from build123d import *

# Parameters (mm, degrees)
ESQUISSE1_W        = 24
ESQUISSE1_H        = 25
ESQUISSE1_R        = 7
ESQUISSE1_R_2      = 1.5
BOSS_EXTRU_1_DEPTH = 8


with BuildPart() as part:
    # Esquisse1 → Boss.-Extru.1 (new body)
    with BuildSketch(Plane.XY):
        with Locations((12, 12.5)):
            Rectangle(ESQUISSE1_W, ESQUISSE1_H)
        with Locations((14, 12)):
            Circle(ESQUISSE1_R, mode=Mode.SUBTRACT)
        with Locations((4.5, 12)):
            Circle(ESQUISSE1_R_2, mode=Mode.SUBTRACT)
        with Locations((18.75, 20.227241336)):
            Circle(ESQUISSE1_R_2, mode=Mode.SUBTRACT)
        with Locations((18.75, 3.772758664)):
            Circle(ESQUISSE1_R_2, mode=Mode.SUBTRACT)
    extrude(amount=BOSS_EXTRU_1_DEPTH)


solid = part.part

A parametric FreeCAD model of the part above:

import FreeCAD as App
import Part
import Sketcher

V = App.Vector
Q = App.Units.Quantity


def add_polygon(sketch, points):
    """Adds a closed chain of lines whose ends are joined by coincident constraints."""
    first, n = sketch.GeometryCount, len(points)
    for a, b in zip(points, points[1:] + points[:1]):
        sketch.addGeometry(Part.LineSegment(App.Vector(*a, 0), App.Vector(*b, 0)), False)
    for i in range(n):
        sketch.addConstraint(Sketcher.Constraint("Coincident", first + i, 2, first + (i + 1) % n, 1))

doc = App.newDocument("Part")
body = doc.addObject("PartDesign::Body", "Body")

sketch1 = body.newObject("Sketcher::SketchObject", "Sketch")
sketch1.AttachmentSupport = (doc.getObject("XY_Plane"), [""])
sketch1.MapMode = "FlatFace"
add_polygon(sketch1, [(0, 25), (0, 0), (24, 0), (24, 25)])
sketch1.addGeometry(Part.Circle(V(18.8, 3.8, 0), V(0, 0, 1), 1.5), False)
sketch1.addGeometry(Part.Circle(V(4.5, 12, 0), V(0, 0, 1), 1.5), False)
sketch1.addGeometry(Part.Circle(V(14, 12, 0), V(0, 0, 1), 7), False)
sketch1.addGeometry(Part.Circle(V(18.8, 20.2, 0), V(0, 0, 1), 1.5), False)
sketch1.addConstraint([
    Sketcher.Constraint("Vertical", 0),
    Sketcher.Constraint("Horizontal", 1),
    Sketcher.Constraint("Vertical", 2),
    Sketcher.Constraint("Horizontal", 3),
    Sketcher.Constraint("Coincident", 0, 2, -1, 1),
    Sketcher.Constraint("Equal", 4, 5),
    Sketcher.Constraint("Equal", 5, 7),
    Sketcher.Constraint("Horizontal", 5, 3, 6, 3),
    Sketcher.Constraint("Vertical", 4, 3, 7, 3),
    Sketcher.Constraint("Diameter", 4, Q("3 mm")),
    Sketcher.Constraint("Diameter", 6, Q("14 mm")),
    Sketcher.Constraint("DistanceX", 1, 1, 1, 2, Q("24 mm")),
    Sketcher.Constraint("DistanceY", 0, 2, 0, 1, Q("25 mm")),
    Sketcher.Constraint("DistanceY", -1, 1, 5, 3, Q("12 mm")),
    Sketcher.Constraint("DistanceX", -1, 1, 6, 3, Q("14 mm")),
    Sketcher.Constraint("DistanceX", -1, 1, 5, 3, Q("4.5 mm")),
    Sketcher.Constraint("DistanceX", -1, 1, 4, 3, Q("18.75 mm")),
    Sketcher.Constraint("DistanceY", -1, 1, 4, 3, Q("3.772759 mm")),
    Sketcher.Constraint("DistanceY", -1, 1, 7, 3, Q("20.227241 mm")),
])
pad1 = body.newObject("PartDesign::Pad", "Pad")
pad1.Profile = sketch1
pad1.Length = 8

doc.recompute()
